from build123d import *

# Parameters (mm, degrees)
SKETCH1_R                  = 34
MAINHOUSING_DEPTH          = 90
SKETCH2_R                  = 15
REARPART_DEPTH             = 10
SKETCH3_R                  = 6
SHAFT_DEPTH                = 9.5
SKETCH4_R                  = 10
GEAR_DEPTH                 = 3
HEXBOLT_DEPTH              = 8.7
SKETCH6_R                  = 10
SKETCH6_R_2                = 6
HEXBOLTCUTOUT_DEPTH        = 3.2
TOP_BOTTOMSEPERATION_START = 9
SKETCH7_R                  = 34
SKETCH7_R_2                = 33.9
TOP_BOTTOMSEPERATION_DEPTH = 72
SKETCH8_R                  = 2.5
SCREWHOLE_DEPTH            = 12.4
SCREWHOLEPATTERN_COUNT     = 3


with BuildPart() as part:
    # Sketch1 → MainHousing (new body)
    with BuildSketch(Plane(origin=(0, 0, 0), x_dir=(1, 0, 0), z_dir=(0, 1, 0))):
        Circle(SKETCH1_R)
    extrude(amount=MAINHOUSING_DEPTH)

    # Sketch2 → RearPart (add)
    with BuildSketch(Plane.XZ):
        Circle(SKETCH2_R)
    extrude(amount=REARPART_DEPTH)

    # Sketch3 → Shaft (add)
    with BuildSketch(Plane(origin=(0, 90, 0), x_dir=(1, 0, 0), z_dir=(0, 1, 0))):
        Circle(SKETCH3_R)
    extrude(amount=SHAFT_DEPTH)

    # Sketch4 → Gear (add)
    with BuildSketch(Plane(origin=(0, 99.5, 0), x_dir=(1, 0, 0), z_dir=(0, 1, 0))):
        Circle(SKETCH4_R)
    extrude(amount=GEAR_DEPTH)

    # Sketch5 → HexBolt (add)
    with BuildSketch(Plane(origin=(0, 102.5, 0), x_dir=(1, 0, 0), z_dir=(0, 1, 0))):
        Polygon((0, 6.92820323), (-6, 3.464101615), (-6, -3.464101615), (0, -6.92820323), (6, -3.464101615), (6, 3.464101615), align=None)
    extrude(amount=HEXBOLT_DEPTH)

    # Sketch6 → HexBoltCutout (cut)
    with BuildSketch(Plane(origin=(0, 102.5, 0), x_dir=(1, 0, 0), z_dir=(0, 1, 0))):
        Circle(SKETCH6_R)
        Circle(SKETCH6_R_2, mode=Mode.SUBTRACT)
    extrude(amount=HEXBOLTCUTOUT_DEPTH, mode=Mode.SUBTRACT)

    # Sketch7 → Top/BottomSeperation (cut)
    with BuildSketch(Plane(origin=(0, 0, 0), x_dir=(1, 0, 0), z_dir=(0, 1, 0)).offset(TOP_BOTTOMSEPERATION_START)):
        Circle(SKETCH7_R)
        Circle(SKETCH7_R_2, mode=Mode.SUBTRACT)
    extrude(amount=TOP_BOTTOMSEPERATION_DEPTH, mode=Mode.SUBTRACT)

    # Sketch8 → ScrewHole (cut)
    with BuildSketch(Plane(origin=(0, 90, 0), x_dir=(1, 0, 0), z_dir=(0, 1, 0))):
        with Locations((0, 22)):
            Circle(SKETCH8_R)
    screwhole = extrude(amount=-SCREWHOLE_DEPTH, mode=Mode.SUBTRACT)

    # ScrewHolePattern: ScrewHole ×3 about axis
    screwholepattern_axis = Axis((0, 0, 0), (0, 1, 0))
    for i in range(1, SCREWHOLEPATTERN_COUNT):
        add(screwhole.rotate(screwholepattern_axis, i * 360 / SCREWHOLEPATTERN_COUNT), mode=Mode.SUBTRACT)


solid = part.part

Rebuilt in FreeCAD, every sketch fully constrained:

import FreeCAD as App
import Part
import Sketcher

V = App.Vector
Q = App.Units.Quantity

doc = App.newDocument("Part")
body = doc.addObject("PartDesign::Body", "Body")

sketch1 = body.newObject("Sketcher::SketchObject", "Sketch")
sketch1.AttachmentSupport = (doc.getObject("XZ_Plane"), [""])
sketch1.MapMode = "FlatFace"
sketch1.addGeometry(Part.Circle(V(0, 0, 0), V(0, 0, 1), 34), False)
sketch1.addConstraint([
    Sketcher.Constraint("Coincident", 0, 3, -1, 1),
    Sketcher.Constraint("Diameter", 0, Q("68 mm")),
])
pad1 = body.newObject("PartDesign::Pad", "Pad")
pad1.Profile = sketch1
pad1.Length = 90
pad1.Reversed = True

sketch2 = body.newObject("Sketcher::SketchObject", "Sketch001")
sketch2.AttachmentSupport = (doc.getObject("XZ_Plane"), [""])
sketch2.MapMode = "FlatFace"
sketch2.addGeometry(Part.Circle(V(0, 0, 0), V(0, 0, 1), 15), False)
sketch2.addConstraint([
    Sketcher.Constraint("Coincident", 0, 3, -1, 1),
    Sketcher.Constraint("Diameter", 0, Q("30 mm")),
])
pad2 = body.newObject("PartDesign::Pad", "Pad001")
pad2.Profile = sketch2
pad2.Length = 10

sketch3 = body.newObject("Sketcher::SketchObject", "Sketch002")
sketch3.AttachmentSupport = (doc.getObject("XZ_Plane"), [""])
sketch3.MapMode = "FlatFace"
sketch3.AttachmentOffset = App.Placement(V(0, 0, -90), App.Rotation())
sketch3.addGeometry(Part.Circle(V(0, 0, 0), V(0, 0, 1), 6), False)
sketch3.addConstraint([
    Sketcher.Constraint("Coincident", 0, 3, -1, 1),
    Sketcher.Constraint("Diameter", 0, Q("12 mm")),
])
pad3 = body.newObject("PartDesign::Pad", "Pad002")
pad3.Profile = sketch3
pad3.Length = 9.5
pad3.Reversed = True

sketch4 = body.newObject("Sketcher::SketchObject", "Sketch003")
sketch4.AttachmentSupport = (doc.getObject("XZ_Plane"), [""])
sketch4.MapMode = "FlatFace"
sketch4.AttachmentOffset = App.Placement(V(0, 0, -99.5), App.Rotation())
sketch4.addGeometry(Part.Circle(V(0, 0, 0), V(0, 0, 1), 10), False)
sketch4.addConstraint([
    Sketcher.Constraint("Coincident", 0, 3, -1, 1),
    Sketcher.Constraint("Diameter", 0, Q("20 mm")),
])
pad4 = body.newObject("PartDesign::Pad", "Pad003")
pad4.Profile = sketch4
pad4.Length = 3
pad4.Reversed = True

sketch5 = body.newObject("Sketcher::SketchObject", "Sketch004")
sketch5.AttachmentSupport = (doc.getObject("XZ_Plane"), [""])
sketch5.MapMode = "FlatFace"
sketch5.AttachmentOffset = App.Placement(V(0, 0, -102.5), App.Rotation())
sketch5.addGeometry([
    Part.LineSegment(V(0, -6.928203, 0), V(-6, -3.464102, 0)),
    Part.LineSegment(V(-6, -3.464102, 0), V(-6, 3.464102, 0)),
    Part.LineSegment(V(-6, 3.464102, 0), V(0, 6.928203, 0)),
    Part.LineSegment(V(0, 6.928203, 0), V(6, 3.464102, 0)),
    Part.LineSegment(V(6, 3.464102, 0), V(6, -3.464102, 0)),
    Part.LineSegment(V(6, -3.464102, 0), V(0, -6.928203, 0)),
], False)
sketch5.addConstraint([
    Sketcher.Constraint("Coincident", 0, 2, 1, 1),
    Sketcher.Constraint("Coincident", 1, 2, 2, 1),
    Sketcher.Constraint("Coincident", 2, 2, 3, 1),
    Sketcher.Constraint("Coincident", 3, 2, 4, 1),
    Sketcher.Constraint("Coincident", 4, 2, 5, 1),
    Sketcher.Constraint("Coincident", 5, 2, 0, 1),
    Sketcher.Constraint("Vertical", 1),
    Sketcher.Constraint("Vertical", 4),
    Sketcher.Constraint("Symmetric", 0, 2, 3, 2, -1, 1),
    Sketcher.Constraint("Symmetric", 2, 2, 5, 2, -1, 1),
    Sketcher.Constraint("PointOnObject", 2, 2, -2),
    Sketcher.Constraint("Parallel", 2, 5),
    Sketcher.Constraint("Horizontal", 1, 2, 3, 2),
    Sketcher.Constraint("Angle", 0, Q("150 deg")),
    Sketcher.Constraint("DistanceX", 0, 2, -1, 1, Q("6 mm")),
    Sketcher.Constraint("DistanceY", 0, 2, -1, 1, Q("3.464102 mm")),
])
pad5 = body.newObject("PartDesign::Pad", "Pad004")
pad5.Profile = sketch5
pad5.Length = 8.7
pad5.Reversed = True

sketch6 = body.newObject("Sketcher::SketchObject", "Sketch005")
sketch6.AttachmentSupport = (doc.getObject("XZ_Plane"), [""])
sketch6.MapMode = "FlatFace"
sketch6.AttachmentOffset = App.Placement(V(0, 0, -102.5), App.Rotation())
sketch6.addGeometry([
    Part.Circle(V(0, 0, 0), V(0, 0, 1), 10),
    Part.Circle(V(0, 0, 0), V(0, 0, 1), 6),
], False)
sketch6.addConstraint([
    Sketcher.Constraint("Coincident", 0, 3, -1, 1),
    Sketcher.Constraint("Coincident", 1, 3, -1, 1),
    Sketcher.Constraint("Diameter", 0, Q("20 mm")),
    Sketcher.Constraint("Diameter", 1, Q("12 mm")),
])
pocket1 = body.newObject("PartDesign::Pocket", "Pocket")
pocket1.Profile = sketch6
pocket1.Length = 3.2

sketch7 = body.newObject("Sketcher::SketchObject", "Sketch006")
sketch7.AttachmentSupport = (doc.getObject("XZ_Plane"), [""])
sketch7.MapMode = "FlatFace"
sketch7.AttachmentOffset = App.Placement(V(0, 0, -9), App.Rotation())
sketch7.addGeometry([
    Part.Circle(V(0, 0, 0), V(0, 0, 1), 34),
    Part.Circle(V(0, 0, 0), V(0, 0, 1), 33.9),
], False)
sketch7.addConstraint([
    Sketcher.Constraint("Coincident", 0, 3, -1, 1),
    Sketcher.Constraint("Coincident", 1, 3, -1, 1),
    Sketcher.Constraint("Diameter", 0, Q("68 mm")),
    Sketcher.Constraint("Diameter", 1, Q("67.8 mm")),
])
pocket2 = body.newObject("PartDesign::Pocket", "Pocket001")
pocket2.Profile = sketch7
pocket2.Length = 72

sketch8 = body.newObject("Sketcher::SketchObject", "Sketch007")
sketch8.AttachmentSupport = (doc.getObject("XZ_Plane"), [""])
sketch8.MapMode = "FlatFace"
sketch8.AttachmentOffset = App.Placement(V(0, 0, -90), App.Rotation())
sketch8.addGeometry(Part.Circle(V(0, -22, 0), V(0, 0, 1), 2.5), False)
sketch8.addConstraint([
    Sketcher.Constraint("PointOnObject", 0, 3, -2),
    Sketcher.Constraint("Diameter", 0, Q("5 mm")),
    Sketcher.Constraint("DistanceY", 0, 3, -1, 1, Q("22 mm")),
])
pocket3 = body.newObject("PartDesign::Pocket", "Pocket002")
pocket3.Profile = sketch8
pocket3.Length = 12.4
pocket3.Reversed = True
doc.recompute()

polarpattern = body.newObject("PartDesign::PolarPattern", "PolarPattern")
polarpattern.Originals = [pocket3]
polarpattern.Axis = (doc.getObject("Y_Axis"), [""])
polarpattern.Angle = 360
polarpattern.Occurrences = 3
body.Tip = polarpattern

doc.recompute()
